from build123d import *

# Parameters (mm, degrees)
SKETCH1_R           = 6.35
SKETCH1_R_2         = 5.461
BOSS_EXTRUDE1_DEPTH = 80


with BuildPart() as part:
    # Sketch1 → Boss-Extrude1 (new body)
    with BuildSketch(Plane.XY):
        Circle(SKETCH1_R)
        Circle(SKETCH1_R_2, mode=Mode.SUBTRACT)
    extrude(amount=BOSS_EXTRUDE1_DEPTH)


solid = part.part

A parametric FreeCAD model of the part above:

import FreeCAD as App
import Part
import Sketcher
Q = App.Units.Quantity

doc = App.newDocument("Part")
body = doc.addObject("PartDesign::Body", "Body")

# Sketch on XY plane
sketch1 = doc.addObject("Sketcher::SketchObject", "Sketch")
body.addObject(sketch1)
sketch1.AttachmentSupport = (doc.XY_Plane, [""])
sketch1.MapMode = "FlatFace"
sketch1.addGeometry([
    Part.Circle(App.Vector(0, 0, 0), App.Vector(0, 0, 1), 6),
    Part.Circle(App.Vector(0, 0, 0), App.Vector(0, 0, 1), 5),
], False)
sketch1.addConstraint([
    Sketcher.Constraint("Coincident", 0, 3, -1, 1),
    Sketcher.Constraint("Coincident", 1, 3, -1, 1),
    Sketcher.Constraint("Diameter", 0, Q("0.5 in")),
    Sketcher.Constraint("Diameter", 1, Q("0.43 in")),
])
pad1 = doc.addObject("PartDesign::Pad", "Pad")
body.addObject(pad1)
pad1.Profile = sketch1
pad1.Length = 80

doc.recompute()
